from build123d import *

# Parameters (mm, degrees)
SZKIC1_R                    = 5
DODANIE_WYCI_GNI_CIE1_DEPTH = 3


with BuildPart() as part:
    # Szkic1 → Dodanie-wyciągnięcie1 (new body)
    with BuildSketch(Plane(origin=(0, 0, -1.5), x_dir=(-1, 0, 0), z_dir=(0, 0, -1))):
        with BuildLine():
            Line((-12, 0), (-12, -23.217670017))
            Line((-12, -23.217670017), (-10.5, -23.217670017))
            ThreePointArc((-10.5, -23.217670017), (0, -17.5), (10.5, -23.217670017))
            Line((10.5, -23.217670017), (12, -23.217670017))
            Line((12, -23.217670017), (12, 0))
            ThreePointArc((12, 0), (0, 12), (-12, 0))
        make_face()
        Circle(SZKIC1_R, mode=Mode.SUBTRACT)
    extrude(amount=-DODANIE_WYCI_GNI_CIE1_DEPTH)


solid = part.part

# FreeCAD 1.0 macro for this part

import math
import FreeCAD as App
import Part
import Sketcher

V = App.Vector
Q = App.Units.Quantity

doc = App.newDocument("Part")
body = doc.addObject("PartDesign::Body", "Body")

# Sketch on XY plane
sketch1 = doc.addObject("Sketcher::SketchObject", "Sketch")
body.addObject(sketch1)
sketch1.AttachmentSupport = (doc.XY_Plane, [""])
sketch1.MapMode = "FlatFace"
sketch1.AttachmentOffset = App.Placement(V(0, 0, -1.5), App.Rotation())
sketch1.addGeometry([
    Part.LineSegment(V(12, 0, 0), V(12, -23.21767, 0)),  # 0
    Part.LineSegment(V(12, -23.21767, 0), V(10.5, -23.21767, 0)),  # 1
    Part.ArcOfCircle(Part.Circle(V(0, -30, 0), V(0, 0, 1), 12.5), math.radians(32.85988), math.radians(147.14012)),  # 2
    Part.LineSegment(V(-10.5, -23.21767, 0), V(-12, -23.21767, 0)),  # 3
    Part.LineSegment(V(-12, -23.21767, 0), V(-12, 0, 0)),  # 4
    Part.ArcOfCircle(Part.Circle(V(0, 0, 0), V(0, 0, 1), 12), math.radians(0), math.radians(180)),  # 5
    Part.Circle(V(0, 0, 0), V(0, 0, 1), 5),  # 6
], False)
sketch1.addConstraint([
    Sketcher.Constraint("Coincident", 0, 2, 1, 1),
    Sketcher.Constraint("Coincident", 1, 2, 2, 1),
    Sketcher.Constraint("Coincident", 2, 2, 3, 1),
    Sketcher.Constraint("Coincident", 3, 2, 4, 1),
    Sketcher.Constraint("Tangent", 4, 2, 5, 2),
    Sketcher.Constraint("Tangent", 5, 1, 0, 1),
    Sketcher.Constraint("Vertical", 0),
    Sketcher.Constraint("Horizontal", 1),
    Sketcher.Constraint("Horizontal", 3),
    Sketcher.Constraint("Vertical", 4),
    Sketcher.Constraint("Coincident", 5, 3, -1, 1),
    Sketcher.Constraint("Coincident", 6, 3, -1, 1),
    Sketcher.Constraint("Symmetric", 1, 2, 2, 2, -2),
    Sketcher.Constraint("Diameter", 6, Q("10 mm")),
    Sketcher.Constraint("Radius", 5, Q("12 mm")),
    Sketcher.Constraint("Radius", 2, Q("12.5 mm")),
    Sketcher.Constraint("DistanceX", 1, 2, 1, 1, Q("1.5 mm")),
    Sketcher.Constraint("DistanceY", 2, 3, -1, 1, Q("30 mm")),
])
pad1 = doc.addObject("PartDesign::Pad", "Pad")
body.addObject(pad1)
pad1.Profile = sketch1
pad1.Length = 3

doc.recompute()
